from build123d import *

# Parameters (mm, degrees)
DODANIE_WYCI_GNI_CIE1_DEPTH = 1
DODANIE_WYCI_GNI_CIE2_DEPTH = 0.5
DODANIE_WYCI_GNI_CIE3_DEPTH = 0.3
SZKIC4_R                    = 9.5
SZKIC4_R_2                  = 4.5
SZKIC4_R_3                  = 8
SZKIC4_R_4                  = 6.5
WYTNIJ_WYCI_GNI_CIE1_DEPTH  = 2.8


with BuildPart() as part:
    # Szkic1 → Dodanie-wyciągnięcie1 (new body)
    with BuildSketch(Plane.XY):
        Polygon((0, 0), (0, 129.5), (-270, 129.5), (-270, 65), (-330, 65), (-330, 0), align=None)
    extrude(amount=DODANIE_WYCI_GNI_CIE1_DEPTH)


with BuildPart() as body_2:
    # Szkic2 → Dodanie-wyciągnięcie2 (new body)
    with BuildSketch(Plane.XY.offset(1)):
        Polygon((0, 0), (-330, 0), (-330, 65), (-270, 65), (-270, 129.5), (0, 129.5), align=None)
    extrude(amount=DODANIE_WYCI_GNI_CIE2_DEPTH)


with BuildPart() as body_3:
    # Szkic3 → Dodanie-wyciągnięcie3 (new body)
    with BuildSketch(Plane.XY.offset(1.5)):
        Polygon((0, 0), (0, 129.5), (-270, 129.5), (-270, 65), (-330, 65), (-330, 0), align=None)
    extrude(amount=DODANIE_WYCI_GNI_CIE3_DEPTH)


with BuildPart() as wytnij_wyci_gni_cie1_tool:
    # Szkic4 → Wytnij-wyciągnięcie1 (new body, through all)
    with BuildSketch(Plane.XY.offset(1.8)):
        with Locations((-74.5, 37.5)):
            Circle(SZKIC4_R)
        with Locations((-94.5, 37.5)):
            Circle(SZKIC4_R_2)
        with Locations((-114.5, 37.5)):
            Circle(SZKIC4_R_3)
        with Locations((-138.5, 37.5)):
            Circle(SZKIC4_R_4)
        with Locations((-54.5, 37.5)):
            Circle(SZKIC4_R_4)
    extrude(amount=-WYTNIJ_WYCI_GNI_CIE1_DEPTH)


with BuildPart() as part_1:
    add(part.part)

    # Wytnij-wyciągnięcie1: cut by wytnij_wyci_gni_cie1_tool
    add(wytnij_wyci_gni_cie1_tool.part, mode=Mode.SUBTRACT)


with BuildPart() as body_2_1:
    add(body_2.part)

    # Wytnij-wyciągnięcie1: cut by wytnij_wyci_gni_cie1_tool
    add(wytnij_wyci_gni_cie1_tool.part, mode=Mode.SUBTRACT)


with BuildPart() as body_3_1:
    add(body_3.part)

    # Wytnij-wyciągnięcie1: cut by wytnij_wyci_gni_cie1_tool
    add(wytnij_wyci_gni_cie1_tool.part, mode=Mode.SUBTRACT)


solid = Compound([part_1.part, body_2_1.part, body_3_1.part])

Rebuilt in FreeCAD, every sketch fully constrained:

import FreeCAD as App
import Part
import Sketcher
from FreeCAD import Vector
Q = App.Units.Quantity

doc = App.newDocument("Part")
params = doc.addObject("Spreadsheet::Sheet", "Params")
for row, (alias, value) in enumerate([
    ("sketch1_width", "270 mm"),
    ("sketch1_width2", "60 mm"),
    ("sketch1_height", "65 mm"),
    ("sketch1_height2", "129.5 mm"),
    ("pad1_length", "1 mm"),
    ("sketch2_width", "330 mm"),
    ("sketch2_width2", "270 mm"),
    ("sketch2_height", "65 mm"),
    ("sketch2_height2", "129.5 mm"),
    ("pad2_length", "0.5 mm"),
    ("sketch3_width", "270 mm"),
    ("sketch3_width2", "60 mm"),
    ("sketch3_height", "65 mm"),
    ("sketch3_height2", "129.5 mm"),
    ("pad3_length", "0.3 mm"),
    ("sketch4_diameter", "19 mm"),
    ("sketch4_diameter2", "9 mm"),
    ("sketch4_diameter3", "16 mm"),
    ("sketch4_diameter4", "13 mm"),
    ("pad4_length", "2.8 mm"),
], start=1):
    params.set(f"A{row}", alias)
    params.set(f"B{row}", "=" + value)
    params.setAlias(f"B{row}", alias)

body = doc.addObject("PartDesign::Body", "Body")

# Sketch on XY plane
sketch1 = doc.addObject("Sketcher::SketchObject", "Sketch")
body.addObject(sketch1)
sketch1.AttachmentSupport = (doc.XY_Plane, [""])
sketch1.MapMode = "FlatFace"
sketch1.addGeometry(Part.LineSegment(Vector(0, 0, 0), Vector(0, 130, 0)), False)
sketch1.addGeometry(Part.LineSegment(Vector(0, 130, 0), Vector(-270, 130, 0)), False)
sketch1.addGeometry(Part.LineSegment(Vector(-270, 130, 0), Vector(-270, 65, 0)), False)
sketch1.addGeometry(Part.LineSegment(Vector(-270, 65, 0), Vector(-330, 65, 0)), False)
sketch1.addGeometry(Part.LineSegment(Vector(-330, 65, 0), Vector(-330, 0, 0)), False)
sketch1.addGeometry(Part.LineSegment(Vector(-330, 0, 0), Vector(0, 0, 0)), False)
sketch1.addConstraint(Sketcher.Constraint("Coincident", 0, 2, 1, 1))
sketch1.addConstraint(Sketcher.Constraint("Coincident", 1, 2, 2, 1))
sketch1.addConstraint(Sketcher.Constraint("Coincident", 2, 2, 3, 1))
sketch1.addConstraint(Sketcher.Constraint("Coincident", 3, 2, 4, 1))
sketch1.addConstraint(Sketcher.Constraint("Coincident", 4, 2, 5, 1))
sketch1.addConstraint(Sketcher.Constraint("Coincident", 5, 2, 0, 1))
sketch1.addConstraint(Sketcher.Constraint("Vertical", 0))
sketch1.addConstraint(Sketcher.Constraint("Horizontal", 1))
sketch1.addConstraint(Sketcher.Constraint("Vertical", 2))
sketch1.addConstraint(Sketcher.Constraint("Horizontal", 3))
sketch1.addConstraint(Sketcher.Constraint("Vertical", 4))
sketch1.addConstraint(Sketcher.Constraint("Horizontal", 5))
sketch1.addConstraint(Sketcher.Constraint("Coincident", 5, 2, -1, 1))
sketch1.addConstraint(Sketcher.Constraint("DistanceX", 1, 2, 1, 1, Q("270 mm")))
sketch1.addConstraint(Sketcher.Constraint("DistanceX", 3, 2, 3, 1, Q("60 mm")))
sketch1.addConstraint(Sketcher.Constraint("DistanceY", 4, 2, 4, 1, Q("65 mm")))
sketch1.addConstraint(Sketcher.Constraint("DistanceY", 0, 1, 0, 2, Q("129.5 mm")))
sketch1.setExpression("Constraints[13]", "Params.sketch1_width")
sketch1.setExpression("Constraints[14]", "Params.sketch1_width2")
sketch1.setExpression("Constraints[15]", "Params.sketch1_height")
sketch1.setExpression("Constraints[16]", "Params.sketch1_height2")
pad1 = doc.addObject("PartDesign::Pad", "Pad")
body.addObject(pad1)
pad1.Profile = sketch1
pad1.setExpression("Length", "Params.pad1_length")
body2 = doc.addObject("PartDesign::Body", "Body001")

# Sketch on XY plane
sketch2 = doc.addObject("Sketcher::SketchObject", "Sketch001")
body2.addObject(sketch2)
sketch2.AttachmentSupport = (doc.getObject("XY_Plane001"), [""])
sketch2.MapMode = "FlatFace"
sketch2.AttachmentOffset = App.Placement(Vector(0, 0, 1), App.Rotation())
sketch2.addGeometry(Part.LineSegment(Vector(-330, 0, 0), Vector(0, 0, 0)), False)
sketch2.addGeometry(Part.LineSegment(Vector(0, 0, 0), Vector(0, 130, 0)), False)
sketch2.addGeometry(Part.LineSegment(Vector(0, 130, 0), Vector(-270, 130, 0)), False)
sketch2.addGeometry(Part.LineSegment(Vector(-270, 130, 0), Vector(-270, 65, 0)), False)
sketch2.addGeometry(Part.LineSegment(Vector(-270, 65, 0), Vector(-330, 65, 0)), False)
sketch2.addGeometry(Part.LineSegment(Vector(-330, 65, 0), Vector(-330, 0, 0)), False)
sketch2.addConstraint(Sketcher.Constraint("Coincident", 0, 2, 1, 1))
sketch2.addConstraint(Sketcher.Constraint("Coincident", 1, 2, 2, 1))
sketch2.addConstraint(Sketcher.Constraint("Coincident", 2, 2, 3, 1))
sketch2.addConstraint(Sketcher.Constraint("Coincident", 3, 2, 4, 1))
sketch2.addConstraint(Sketcher.Constraint("Coincident", 4, 2, 5, 1))
sketch2.addConstraint(Sketcher.Constraint("Coincident", 5, 2, 0, 1))
sketch2.addConstraint(Sketcher.Constraint("Horizontal", 0))
sketch2.addConstraint(Sketcher.Constraint("Vertical", 1))
sketch2.addConstraint(Sketcher.Constraint("Horizontal", 2))
sketch2.addConstraint(Sketcher.Constraint("Vertical", 3))
sketch2.addConstraint(Sketcher.Constraint("Horizontal", 4))
sketch2.addConstraint(Sketcher.Constraint("Vertical", 5))
sketch2.addConstraint(Sketcher.Constraint("Coincident", 0, 2, -1, 1))
sketch2.addConstraint(Sketcher.Constraint("DistanceX", 0, 1, 0, 2, Q("330 mm")))
sketch2.addConstraint(Sketcher.Constraint("DistanceX", 2, 2, 2, 1, Q("270 mm")))
sketch2.addConstraint(Sketcher.Constraint("DistanceY", 5, 2, 5, 1, Q("65 mm")))
sketch2.addConstraint(Sketcher.Constraint("DistanceY", 1, 1, 1, 2, Q("129.5 mm")))
sketch2.setExpression("Constraints[13]", "Params.sketch2_width")
sketch2.setExpression("Constraints[14]", "Params.sketch2_width2")
sketch2.setExpression("Constraints[15]", "Params.sketch2_height")
sketch2.setExpression("Constraints[16]", "Params.sketch2_height2")
pad2 = doc.addObject("PartDesign::Pad", "Pad001")
body2.addObject(pad2)
pad2.Profile = sketch2
pad2.setExpression("Length", "Params.pad2_length")
body3 = doc.addObject("PartDesign::Body", "Body002")

# Sketch on XY plane
sketch3 = doc.addObject("Sketcher::SketchObject", "Sketch002")
body3.addObject(sketch3)
sketch3.AttachmentSupport = (doc.getObject("XY_Plane002"), [""])
sketch3.MapMode = "FlatFace"
sketch3.AttachmentOffset = App.Placement(Vector(0, 0, 1.5), App.Rotation())
sketch3.addGeometry(Part.LineSegment(Vector(0, 0, 0), Vector(0, 130, 0)), False)
sketch3.addGeometry(Part.LineSegment(Vector(0, 130, 0), Vector(-270, 130, 0)), False)
sketch3.addGeometry(Part.LineSegment(Vector(-270, 130, 0), Vector(-270, 65, 0)), False)
sketch3.addGeometry(Part.LineSegment(Vector(-270, 65, 0), Vector(-330, 65, 0)), False)
sketch3.addGeometry(Part.LineSegment(Vector(-330, 65, 0), Vector(-330, 0, 0)), False)
sketch3.addGeometry(Part.LineSegment(Vector(-330, 0, 0), Vector(0, 0, 0)), False)
sketch3.addConstraint(Sketcher.Constraint("Coincident", 0, 2, 1, 1))
sketch3.addConstraint(Sketcher.Constraint("Coincident", 1, 2, 2, 1))
sketch3.addConstraint(Sketcher.Constraint("Coincident", 2, 2, 3, 1))
sketch3.addConstraint(Sketcher.Constraint("Coincident", 3, 2, 4, 1))
sketch3.addConstraint(Sketcher.Constraint("Coincident", 4, 2, 5, 1))
sketch3.addConstraint(Sketcher.Constraint("Coincident", 5, 2, 0, 1))
sketch3.addConstraint(Sketcher.Constraint("Vertical", 0))
sketch3.addConstraint(Sketcher.Constraint("Horizontal", 1))
sketch3.addConstraint(Sketcher.Constraint("Vertical", 2))
sketch3.addConstraint(Sketcher.Constraint("Horizontal", 3))
sketch3.addConstraint(Sketcher.Constraint("Vertical", 4))
sketch3.addConstraint(Sketcher.Constraint("Horizontal", 5))
sketch3.addConstraint(Sketcher.Constraint("Coincident", 5, 2, -1, 1))
sketch3.addConstraint(Sketcher.Constraint("DistanceX", 1, 2, 1, 1, Q("270 mm")))
sketch3.addConstraint(Sketcher.Constraint("DistanceX", 3, 2, 3, 1, Q("60 mm")))
sketch3.addConstraint(Sketcher.Constraint("DistanceY", 4, 2, 4, 1, Q("65 mm")))
sketch3.addConstraint(Sketcher.Constraint("DistanceY", 0, 1, 0, 2, Q("129.5 mm")))
sketch3.setExpression("Constraints[13]", "Params.sketch3_width")
sketch3.setExpression("Constraints[14]", "Params.sketch3_width2")
sketch3.setExpression("Constraints[15]", "Params.sketch3_height")
sketch3.setExpression("Constraints[16]", "Params.sketch3_height2")
pad3 = doc.addObject("PartDesign::Pad", "Pad002")
body3.addObject(pad3)
pad3.Profile = sketch3
pad3.setExpression("Length", "Params.pad3_length")
body4 = doc.addObject("PartDesign::Body", "Body003")
body4.AllowCompound = True

# Sketch on XY plane
sketch4 = doc.addObject("Sketcher::SketchObject", "Sketch003")
body4.addObject(sketch4)
sketch4.AttachmentSupport = (doc.getObject("XY_Plane003"), [""])
sketch4.MapMode = "FlatFace"
sketch4.AttachmentOffset = App.Placement(Vector(0, 0, 1.8), App.Rotation())
sketch4.addGeometry(Part.Circle(Vector(-74.5, 37.5, 0), Vector(0, 0, 1), 9.5), False)
sketch4.addGeometry(Part.Circle(Vector(-94.5, 37.5, 0), Vector(0, 0, 1), 4.5), False)
sketch4.addGeometry(Part.Circle(Vector(-114.5, 37.5, 0), Vector(0, 0, 1), 8), False)
sketch4.addGeometry(Part.Circle(Vector(-138.5, 37.5, 0), Vector(0, 0, 1), 6.5), False)
sketch4.addGeometry(Part.Circle(Vector(-54.5, 37.5, 0), Vector(0, 0, 1), 6.5), False)
sketch4.addConstraint(Sketcher.Constraint("Equal", 3, 4))
sketch4.addConstraint(Sketcher.Constraint("Horizontal", 0, 3, 1, 3))
sketch4.addConstraint(Sketcher.Constraint("Horizontal", 1, 3, 2, 3))
sketch4.addConstraint(Sketcher.Constraint("Horizontal", 2, 3, 3, 3))
sketch4.addConstraint(Sketcher.Constraint("Horizontal", 3, 3, 4, 3))
sketch4.addConstraint(Sketcher.Constraint("Diameter", 0, Q("19 mm")))
sketch4.addConstraint(Sketcher.Constraint("Diameter", 1, Q("9 mm")))
sketch4.addConstraint(Sketcher.Constraint("Diameter", 2, Q("16 mm")))
sketch4.addConstraint(Sketcher.Constraint("Diameter", 3, Q("13 mm")))
sketch4.addConstraint(Sketcher.Constraint("DistanceX", 1, 3, 0, 3, Q("20 mm")))
sketch4.addConstraint(Sketcher.Constraint("DistanceX", 2, 3, 1, 3, Q("20 mm")))
sketch4.addConstraint(Sketcher.Constraint("DistanceX", 3, 3, 2, 3, Q("24 mm")))
sketch4.addConstraint(Sketcher.Constraint("DistanceX", 0, 3, 4, 3, Q("20 mm")))
sketch4.addConstraint(Sketcher.Constraint("DistanceX", 0, 3, -1, 1, Q("74.5 mm")))
sketch4.addConstraint(Sketcher.Constraint("DistanceY", -1, 1, 0, 3, Q("37.5 mm")))
sketch4.setExpression("Constraints[5]", "Params.sketch4_diameter")
sketch4.setExpression("Constraints[6]", "Params.sketch4_diameter2")
sketch4.setExpression("Constraints[7]", "Params.sketch4_diameter3")
sketch4.setExpression("Constraints[8]", "Params.sketch4_diameter4")
pad4 = doc.addObject("PartDesign::Pad", "Pad003")
body4.addObject(pad4)
pad4.Profile = sketch4
pad4.setExpression("Length", "Params.pad4_length")
pad4.Reversed = True
doc.recompute()

body5 = doc.addObject("PartDesign::Body", "Body004")
body5.BaseFeature = body4
boolean = doc.addObject("PartDesign::Boolean", "Boolean")
body.addObject(boolean)
boolean.Type = "Cut"
boolean.addObjects([body5])
doc.recompute()

body6 = doc.addObject("PartDesign::Body", "Body005")
body6.BaseFeature = body4
boolean2 = doc.addObject("PartDesign::Boolean", "Boolean001")
body2.addObject(boolean2)
boolean2.Type = "Cut"
boolean2.addObjects([body6])
doc.recompute()

boolean3 = doc.addObject("PartDesign::Boolean", "Boolean002")
body3.addObject(boolean3)
boolean3.Type = "Cut"
boolean3.addObjects([body4])

doc.recompute()
